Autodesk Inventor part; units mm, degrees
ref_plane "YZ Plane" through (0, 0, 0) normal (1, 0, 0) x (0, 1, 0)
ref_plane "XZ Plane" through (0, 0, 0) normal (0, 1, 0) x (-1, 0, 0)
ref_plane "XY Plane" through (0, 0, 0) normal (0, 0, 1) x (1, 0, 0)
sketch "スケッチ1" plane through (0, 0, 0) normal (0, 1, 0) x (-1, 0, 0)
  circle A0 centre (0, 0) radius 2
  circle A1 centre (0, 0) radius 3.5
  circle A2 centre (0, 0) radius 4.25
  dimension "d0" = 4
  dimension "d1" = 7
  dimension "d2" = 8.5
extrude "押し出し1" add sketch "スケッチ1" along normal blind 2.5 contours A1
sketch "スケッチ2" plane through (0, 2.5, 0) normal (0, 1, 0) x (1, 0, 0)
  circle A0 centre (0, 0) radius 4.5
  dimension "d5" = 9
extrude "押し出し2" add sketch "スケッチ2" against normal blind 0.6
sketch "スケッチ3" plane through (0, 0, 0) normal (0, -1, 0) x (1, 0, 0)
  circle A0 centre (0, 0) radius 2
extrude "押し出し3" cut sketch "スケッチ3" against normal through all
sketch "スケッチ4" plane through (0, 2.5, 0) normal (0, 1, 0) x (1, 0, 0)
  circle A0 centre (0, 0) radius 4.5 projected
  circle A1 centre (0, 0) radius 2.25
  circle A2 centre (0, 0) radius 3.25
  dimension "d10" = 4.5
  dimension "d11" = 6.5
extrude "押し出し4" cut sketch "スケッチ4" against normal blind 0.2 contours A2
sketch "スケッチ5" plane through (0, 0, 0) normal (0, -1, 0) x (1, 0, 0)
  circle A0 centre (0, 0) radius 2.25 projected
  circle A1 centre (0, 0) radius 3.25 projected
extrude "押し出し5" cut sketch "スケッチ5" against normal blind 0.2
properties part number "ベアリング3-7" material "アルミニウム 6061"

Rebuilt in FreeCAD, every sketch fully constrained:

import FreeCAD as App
import Part
import Sketcher
from FreeCAD import Vector
Q = App.Units.Quantity

doc = App.newDocument("Part")
params = doc.addObject("Spreadsheet::Sheet", "Params")
for row, (alias, value) in enumerate([
    ("sketch1_diameter", "7 mm"),
    ("sketch1_diameter2", "4 mm"),
    ("pad1_length", "2.5 mm"),
    ("sketch2_diameter", "9 mm"),
    ("pad2_length", "0.6 mm"),
    ("sketch3_diameter", "4 mm"),
    ("sketch4_diameter", "6.5 mm"),
    ("sketch4_diameter2", "4.5 mm"),
    ("pocket2_length", "0.2 mm"),
    ("sketch5_diameter", "6.5 mm"),
    ("sketch5_diameter2", "4.5 mm"),
    ("pocket3_length", "0.2 mm"),
], start=1):
    params.set(f"A{row}", alias)
    params.set(f"B{row}", "=" + value)
    params.setAlias(f"B{row}", alias)

body = doc.addObject("PartDesign::Body", "Body")

# Sketch on XZ plane
sketch1 = body.newObject("Sketcher::SketchObject", "Sketch")
sketch1.AttachmentSupport = (doc.getObject("XZ_Plane"), [""])
sketch1.MapMode = "FlatFace"
sketch1.addGeometry([
    Part.Circle(Vector(0, 0, 0), Vector(0, 0, 1), 3.5),
    Part.Circle(Vector(0, 0, 0), Vector(0, 0, 1), 2),
], False)
sketch1.addConstraint([
    Sketcher.Constraint("Coincident", 0, 3, -1, 1),
    Sketcher.Constraint("Coincident", 1, 3, -1, 1),
    Sketcher.Constraint("Diameter", 0, Q("7 mm")),
    Sketcher.Constraint("Diameter", 1, Q("4 mm")),
])
sketch1.setExpression("Constraints[2]", "Params.sketch1_diameter")
sketch1.setExpression("Constraints[3]", "Params.sketch1_diameter2")
pad1 = body.newObject("PartDesign::Pad", "Pad")
pad1.Profile = sketch1
pad1.setExpression("Length", "Params.pad1_length")
pad1.Reversed = True

# Sketch on XZ plane
sketch2 = body.newObject("Sketcher::SketchObject", "Sketch001")
sketch2.AttachmentSupport = (doc.getObject("XZ_Plane"), [""])
sketch2.MapMode = "FlatFace"
sketch2.AttachmentOffset = App.Placement(Vector(0, 0, -2.5), App.Rotation())
sketch2.addGeometry(Part.Circle(Vector(0, 0, 0), Vector(0, 0, 1), 4.5), False)
sketch2.addConstraint([
    Sketcher.Constraint("Coincident", 0, 3, -1, 1),
    Sketcher.Constraint("Diameter", 0, Q("9 mm")),
])
sketch2.setExpression("Constraints[1]", "Params.sketch2_diameter")
pad2 = body.newObject("PartDesign::Pad", "Pad001")
pad2.Profile = sketch2
pad2.setExpression("Length", "Params.pad2_length")

# Sketch on XZ plane
sketch3 = body.newObject("Sketcher::SketchObject", "Sketch002")
sketch3.AttachmentSupport = (doc.getObject("XZ_Plane"), [""])
sketch3.MapMode = "FlatFace"
sketch3.addGeometry(Part.Circle(Vector(0, 0, 0), Vector(0, 0, 1), 2), False)
sketch3.addConstraint([
    Sketcher.Constraint("Coincident", 0, 3, -1, 1),
    Sketcher.Constraint("Diameter", 0, Q("4 mm")),
])
sketch3.setExpression("Constraints[1]", "Params.sketch3_diameter")
pocket1 = body.newObject("PartDesign::Pocket", "Pocket")
pocket1.Profile = sketch3
pocket1.Type = "ThroughAll"

# Sketch on XZ plane
sketch4 = body.newObject("Sketcher::SketchObject", "Sketch003")
sketch4.AttachmentSupport = (doc.getObject("XZ_Plane"), [""])
sketch4.MapMode = "FlatFace"
sketch4.AttachmentOffset = App.Placement(Vector(0, 0, -2.5), App.Rotation())
sketch4.addGeometry([
    Part.Circle(Vector(0, 0, 0), Vector(0, 0, 1), 3.2),
    Part.Circle(Vector(0, 0, 0), Vector(0, 0, 1), 2.2),
], False)
sketch4.addConstraint([
    Sketcher.Constraint("Coincident", 0, 3, -1, 1),
    Sketcher.Constraint("Coincident", 1, 3, -1, 1),
    Sketcher.Constraint("Diameter", 0, Q("6.5 mm")),
    Sketcher.Constraint("Diameter", 1, Q("4.5 mm")),
])
sketch4.setExpression("Constraints[2]", "Params.sketch4_diameter")
sketch4.setExpression("Constraints[3]", "Params.sketch4_diameter2")
pocket2 = body.newObject("PartDesign::Pocket", "Pocket001")
pocket2.Profile = sketch4
pocket2.setExpression("Length", "Params.pocket2_length")
pocket2.Reversed = True

# Sketch on XZ plane
sketch5 = body.newObject("Sketcher::SketchObject", "Sketch004")
sketch5.AttachmentSupport = (doc.getObject("XZ_Plane"), [""])
sketch5.MapMode = "FlatFace"
sketch5.addGeometry([
    Part.Circle(Vector(0, 0, 0), Vector(0, 0, 1), 3.2),
    Part.Circle(Vector(0, 0, 0), Vector(0, 0, 1), 2.2),
], False)
sketch5.addConstraint([
    Sketcher.Constraint("Coincident", 0, 3, -1, 1),
    Sketcher.Constraint("Coincident", 1, 3, -1, 1),
    Sketcher.Constraint("Diameter", 0, Q("6.5 mm")),
    Sketcher.Constraint("Diameter", 1, Q("4.5 mm")),
])
sketch5.setExpression("Constraints[2]", "Params.sketch5_diameter")
sketch5.setExpression("Constraints[3]", "Params.sketch5_diameter2")
pocket3 = body.newObject("PartDesign::Pocket", "Pocket002")
pocket3.Profile = sketch5
pocket3.setExpression("Length", "Params.pocket3_length")

doc.recompute()
